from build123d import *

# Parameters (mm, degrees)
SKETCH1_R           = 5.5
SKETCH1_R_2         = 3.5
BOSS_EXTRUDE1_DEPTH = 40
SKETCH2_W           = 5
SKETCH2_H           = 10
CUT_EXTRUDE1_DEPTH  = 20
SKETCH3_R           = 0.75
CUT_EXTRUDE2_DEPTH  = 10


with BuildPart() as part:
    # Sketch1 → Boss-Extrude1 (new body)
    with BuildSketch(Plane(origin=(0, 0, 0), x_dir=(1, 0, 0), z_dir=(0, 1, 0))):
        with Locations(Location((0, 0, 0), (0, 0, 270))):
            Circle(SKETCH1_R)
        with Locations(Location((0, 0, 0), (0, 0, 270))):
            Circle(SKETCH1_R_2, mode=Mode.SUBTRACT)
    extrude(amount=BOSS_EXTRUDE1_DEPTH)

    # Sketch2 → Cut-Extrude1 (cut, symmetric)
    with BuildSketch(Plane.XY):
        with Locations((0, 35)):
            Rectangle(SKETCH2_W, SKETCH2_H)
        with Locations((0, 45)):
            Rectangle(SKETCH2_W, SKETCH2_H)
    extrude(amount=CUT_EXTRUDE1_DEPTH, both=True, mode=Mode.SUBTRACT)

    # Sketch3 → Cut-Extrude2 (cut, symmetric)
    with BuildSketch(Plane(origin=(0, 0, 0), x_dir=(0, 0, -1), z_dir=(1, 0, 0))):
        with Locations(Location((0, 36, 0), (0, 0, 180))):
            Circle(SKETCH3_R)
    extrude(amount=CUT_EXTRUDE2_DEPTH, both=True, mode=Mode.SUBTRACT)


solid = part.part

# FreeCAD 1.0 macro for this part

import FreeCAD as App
import Part
import Sketcher
from FreeCAD import Vector
Q = App.Units.Quantity


def add_polygon(sketch, points):
    """Adds a closed chain of lines whose ends are joined by coincident constraints."""
    first, n = sketch.GeometryCount, len(points)
    for a, b in zip(points, points[1:] + points[:1]):
        sketch.addGeometry(Part.LineSegment(App.Vector(*a, 0), App.Vector(*b, 0)), False)
    for i in range(n):
        sketch.addConstraint(Sketcher.Constraint("Coincident", first + i, 2, first + (i + 1) % n, 1))

doc = App.newDocument("Part")
body = doc.addObject("PartDesign::Body", "Body")

# Sketch on XZ plane
sketch1 = doc.addObject("Sketcher::SketchObject", "Sketch")
body.addObject(sketch1)
sketch1.AttachmentSupport = (doc.XZ_Plane, [""])
sketch1.MapMode = "FlatFace"
sketch1.addGeometry([
    Part.Circle(Vector(0, 0, 0), Vector(0, 0, 1), 5.5),
    Part.Circle(Vector(0, 0, 0), Vector(0, 0, 1), 3.5),
], False)
sketch1.addConstraint([
    Sketcher.Constraint("Coincident", 0, 3, -1, 1),
    Sketcher.Constraint("Coincident", 1, 3, -1, 1),
    Sketcher.Constraint("Diameter", 0, Q("11 mm")),
    Sketcher.Constraint("Diameter", 1, Q("7 mm")),
])
pad1 = doc.addObject("PartDesign::Pad", "Pad")
body.addObject(pad1)
pad1.Profile = sketch1
pad1.Length = 40
pad1.Reversed = True

# Sketch on XY plane
sketch2 = doc.addObject("Sketcher::SketchObject", "Sketch001")
body.addObject(sketch2)
sketch2.AttachmentSupport = (doc.XY_Plane, [""])
sketch2.MapMode = "FlatFace"
add_polygon(sketch2, [(-2.5, 30), (2.5, 30), (2.5, 50), (-2.5, 50)])  # lines 0-3
sketch2.addConstraint([
    Sketcher.Constraint("Horizontal", 0),
    Sketcher.Constraint("Vertical", 1),
    Sketcher.Constraint("Horizontal", 2),
    Sketcher.Constraint("Vertical", 3),
    Sketcher.Constraint("DistanceX", 0, 1, 0, 2, Q("5 mm")),
    Sketcher.Constraint("DistanceY", 1, 1, 1, 2, Q("20 mm")),
    Sketcher.Constraint("DistanceY", -1, 1, 0, 2, Q("30 mm")),
    Sketcher.Constraint("DistanceX", -1, 1, 0, 2, Q("2.5 mm")),
])
pocket1 = doc.addObject("PartDesign::Pocket", "Pocket")
body.addObject(pocket1)
pocket1.Profile = sketch2
pocket1.Length = 40
pocket1.Midplane = True

# Sketch on YZ plane
sketch3 = doc.addObject("Sketcher::SketchObject", "Sketch002")
body.addObject(sketch3)
sketch3.AttachmentSupport = (doc.YZ_Plane, [""])
sketch3.MapMode = "FlatFace"
sketch3.addGeometry(Part.Circle(Vector(36, 0, 0), Vector(0, 0, 1), 0.75), False)
sketch3.addConstraint([
    Sketcher.Constraint("PointOnObject", 0, 3, -1),
    Sketcher.Constraint("Diameter", 0, Q("1.5 mm")),
    Sketcher.Constraint("DistanceX", -1, 1, 0, 3, Q("36 mm")),
])
pocket2 = doc.addObject("PartDesign::Pocket", "Pocket001")
body.addObject(pocket2)
pocket2.Profile = sketch3
pocket2.Length = 20
pocket2.Midplane = True

doc.recompute()
